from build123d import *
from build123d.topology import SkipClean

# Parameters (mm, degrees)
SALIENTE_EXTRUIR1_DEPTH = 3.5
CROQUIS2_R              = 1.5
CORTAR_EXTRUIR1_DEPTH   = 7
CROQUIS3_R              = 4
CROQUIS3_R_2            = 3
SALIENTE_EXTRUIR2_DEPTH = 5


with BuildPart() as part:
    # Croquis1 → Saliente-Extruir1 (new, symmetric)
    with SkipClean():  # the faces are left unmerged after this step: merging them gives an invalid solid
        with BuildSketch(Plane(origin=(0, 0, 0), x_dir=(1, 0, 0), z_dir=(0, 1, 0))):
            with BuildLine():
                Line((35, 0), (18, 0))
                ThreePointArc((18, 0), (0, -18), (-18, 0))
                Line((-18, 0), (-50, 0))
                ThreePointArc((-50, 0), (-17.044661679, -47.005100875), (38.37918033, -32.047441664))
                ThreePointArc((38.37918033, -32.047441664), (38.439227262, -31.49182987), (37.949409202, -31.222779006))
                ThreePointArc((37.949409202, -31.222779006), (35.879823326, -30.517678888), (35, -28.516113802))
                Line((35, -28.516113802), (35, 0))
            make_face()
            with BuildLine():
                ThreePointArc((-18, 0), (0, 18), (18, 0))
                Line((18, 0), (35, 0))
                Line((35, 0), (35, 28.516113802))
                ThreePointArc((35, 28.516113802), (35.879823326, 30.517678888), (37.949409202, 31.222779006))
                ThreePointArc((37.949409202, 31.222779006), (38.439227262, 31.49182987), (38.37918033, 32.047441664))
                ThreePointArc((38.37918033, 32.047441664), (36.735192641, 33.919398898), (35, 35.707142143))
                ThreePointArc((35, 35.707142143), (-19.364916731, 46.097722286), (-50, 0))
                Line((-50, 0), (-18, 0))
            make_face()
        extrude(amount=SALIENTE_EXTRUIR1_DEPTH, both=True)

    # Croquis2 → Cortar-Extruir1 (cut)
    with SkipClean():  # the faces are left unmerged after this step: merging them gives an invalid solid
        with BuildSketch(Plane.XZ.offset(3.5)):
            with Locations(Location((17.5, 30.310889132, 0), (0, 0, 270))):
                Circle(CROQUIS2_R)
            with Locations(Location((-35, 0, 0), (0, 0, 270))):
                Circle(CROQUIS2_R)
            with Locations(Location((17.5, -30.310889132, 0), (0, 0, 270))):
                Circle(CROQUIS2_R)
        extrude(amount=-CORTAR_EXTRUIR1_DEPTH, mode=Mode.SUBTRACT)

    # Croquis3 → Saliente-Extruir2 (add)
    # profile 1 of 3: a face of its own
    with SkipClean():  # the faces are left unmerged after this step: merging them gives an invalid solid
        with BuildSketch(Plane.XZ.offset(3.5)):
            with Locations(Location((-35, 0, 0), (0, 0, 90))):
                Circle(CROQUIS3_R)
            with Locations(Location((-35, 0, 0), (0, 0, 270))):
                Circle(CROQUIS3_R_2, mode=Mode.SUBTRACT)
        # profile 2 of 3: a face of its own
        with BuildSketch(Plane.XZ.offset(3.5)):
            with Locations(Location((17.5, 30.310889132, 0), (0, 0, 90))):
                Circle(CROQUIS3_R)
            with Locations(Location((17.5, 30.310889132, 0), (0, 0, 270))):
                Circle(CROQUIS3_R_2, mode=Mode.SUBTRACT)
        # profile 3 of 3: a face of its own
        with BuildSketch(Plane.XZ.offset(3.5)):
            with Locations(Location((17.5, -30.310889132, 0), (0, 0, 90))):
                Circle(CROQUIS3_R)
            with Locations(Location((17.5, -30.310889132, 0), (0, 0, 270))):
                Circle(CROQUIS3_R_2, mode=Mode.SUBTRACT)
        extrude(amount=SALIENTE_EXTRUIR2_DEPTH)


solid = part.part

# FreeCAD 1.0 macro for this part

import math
import FreeCAD as App
import Part
import Sketcher

doc = App.newDocument("Part")
body = doc.addObject("PartDesign::Body", "Body")

sketch1 = doc.addObject("Sketcher::SketchObject", "Sketch")
body.addObject(sketch1)
sketch1.AttachmentSupport = (doc.XZ_Plane, [""])
sketch1.MapMode = "FlatFace"
sketch1.addGeometry(Part.LineSegment(App.Vector(35, 0, 0), App.Vector(18, 0, 0)), False)
sketch1.addGeometry(Part.ArcOfCircle(Part.Circle(App.Vector(0, 0, 0), App.Vector(0, 0, 1), 18), math.radians(0), math.radians(180)), False)
sketch1.addGeometry(Part.LineSegment(App.Vector(-18, 0, 0), App.Vector(-50, 0, 0)), False)
sketch1.addGeometry(Part.ArcOfCircle(Part.Circle(App.Vector(0, 0, 0), App.Vector(0, 0, 1), 50), math.radians(39.862608), math.radians(180)), False)
sketch1.addGeometry(Part.ArcOfCircle(Part.Circle(App.Vector(37.992563, 31.724608, 0), App.Vector(0, 0, 1), 0.503681), math.radians(-94.914955), math.radians(39.862608)), False)
sketch1.addGeometry(Part.ArcOfCircle(Part.Circle(App.Vector(37.716654, 28.516114, 0), App.Vector(0, 0, 1), 2.716654), math.radians(85.085045), math.radians(180)), False)
sketch1.addGeometry(Part.LineSegment(App.Vector(35, 28.516114, 0), App.Vector(35, 0, 0)), False)
sketch1.addGeometry(Part.ArcOfCircle(Part.Circle(App.Vector(0, 0, 0), App.Vector(0, 0, 1), 18), math.radians(180), math.radians(360)), False)
sketch1.addGeometry(Part.LineSegment(App.Vector(18, 0, 0), App.Vector(35, 0, 0)), False)
sketch1.addGeometry(Part.LineSegment(App.Vector(35, 0, 0), App.Vector(35, -28.516114, 0)), False)
sketch1.addGeometry(Part.ArcOfCircle(Part.Circle(App.Vector(37.716654, -28.516114, 0), App.Vector(0, 0, 1), 2.716654), math.radians(180), math.radians(274.914955)), False)
sketch1.addGeometry(Part.ArcOfCircle(Part.Circle(App.Vector(37.992563, -31.724608, 0), App.Vector(0, 0, 1), 0.503681), math.radians(-39.862608), math.radians(94.914955)), False)
sketch1.addGeometry(Part.ArcOfCircle(Part.Circle(App.Vector(0, 0, 0), App.Vector(0, 0, 1), 50), math.radians(-45.572996), math.radians(-39.862608)), False)
sketch1.addGeometry(Part.ArcOfCircle(Part.Circle(App.Vector(0, 0, 0), App.Vector(0, 0, 1), 50), math.radians(-180), math.radians(-45.572996)), False)
sketch1.addGeometry(Part.LineSegment(App.Vector(-50, 0, 0), App.Vector(-18, 0, 0)), False)
sketch1.addConstraint(Sketcher.Constraint("Coincident", 0, 2, 1, 1))
sketch1.addConstraint(Sketcher.Constraint("Coincident", 1, 2, 2, 1))
sketch1.addConstraint(Sketcher.Constraint("Coincident", 2, 2, 3, 2))
sketch1.addConstraint(Sketcher.Constraint("Tangent", 3, 1, 4, 2))
sketch1.addConstraint(Sketcher.Constraint("Tangent", 4, 1, 5, 1))
sketch1.addConstraint(Sketcher.Constraint("Tangent", 5, 2, 6, 1))
sketch1.addConstraint(Sketcher.Constraint("Coincident", 6, 2, 0, 1))
sketch1.addConstraint(Sketcher.Constraint("Coincident", 7, 2, 8, 1))
sketch1.addConstraint(Sketcher.Constraint("Coincident", 8, 2, 9, 1))
sketch1.addConstraint(Sketcher.Constraint("Tangent", 9, 2, 10, 1))
sketch1.addConstraint(Sketcher.Constraint("Tangent", 10, 2, 11, 2))
sketch1.addConstraint(Sketcher.Constraint("Tangent", 11, 1, 12, 2))
sketch1.addConstraint(Sketcher.Constraint("Tangent", 12, 1, 13, 2))
sketch1.addConstraint(Sketcher.Constraint("Coincident", 13, 1, 14, 1))
sketch1.addConstraint(Sketcher.Constraint("Coincident", 14, 2, 7, 1))
sketch1.addConstraint(Sketcher.Constraint("Horizontal", 0))
sketch1.addConstraint(Sketcher.Constraint("Horizontal", 2))
sketch1.addConstraint(Sketcher.Constraint("Vertical", 6))
sketch1.addConstraint(Sketcher.Constraint("Horizontal", 8))
sketch1.addConstraint(Sketcher.Constraint("Vertical", 9))
sketch1.addConstraint(Sketcher.Constraint("Horizontal", 14))
sketch1.addConstraint(Sketcher.Constraint("Coincident", 1, 3, -1, 1))
sketch1.addConstraint(Sketcher.Constraint("Coincident", 3, 3, -1, 1))
sketch1.addConstraint(Sketcher.Constraint("Coincident", 7, 3, -1, 1))
sketch1.addConstraint(Sketcher.Constraint("Coincident", 12, 3, -1, 1))
sketch1.addConstraint(Sketcher.Constraint("Coincident", 7, 2, 0, 2))
sketch1.addConstraint(Sketcher.Constraint("Coincident", 13, 1, 2, 2))
sketch1.addConstraint(Sketcher.Constraint("Equal", 5, 10))
sketch1.addConstraint(Sketcher.Constraint("Equal", 4, 11))
sketch1.addConstraint(Sketcher.Constraint("Equal", 3, 12))
sketch1.addConstraint(Sketcher.Constraint("Symmetric", 5, 3, 10, 3, -1))
sketch1.addConstraint(Sketcher.Constraint("PointOnObject", 0, 2, -1))
sketch1.addConstraint(Sketcher.Constraint("PointOnObject", 1, 2, -1))
sketch1.addConstraint(Sketcher.Constraint("Vertical", 9, 2, 12, 1))
sketch1.addConstraint(Sketcher.Constraint("Radius", 1, 18.0))
sketch1.addConstraint(Sketcher.Constraint("Radius", 3, 50.0))
sketch1.addConstraint(Sketcher.Constraint("DistanceX", 0, 2, 0, 1, 17.0))
sketch1.addConstraint(Sketcher.Constraint("Radius", 4, 0.503681))
sketch1.addConstraint(Sketcher.Constraint("Radius", 5, 2.716654))
sketch1.addConstraint(Sketcher.Constraint("DistanceY", 12, 1, 11, 1, 3.6597))
pad1 = doc.addObject("PartDesign::Pad", "Pad")
body.addObject(pad1)
pad1.Profile = sketch1
pad1.Length = 7
pad1.Midplane = True

sketch2 = doc.addObject("Sketcher::SketchObject", "Sketch001")
body.addObject(sketch2)
sketch2.AttachmentSupport = (doc.XZ_Plane, [""])
sketch2.MapMode = "FlatFace"
sketch2.AttachmentOffset = App.Placement(App.Vector(0, 0, 3.5), App.Rotation())
sketch2.addGeometry(Part.Circle(App.Vector(17.5, 30.310889, 0), App.Vector(0, 0, 1), 1.5), False)
sketch2.addGeometry(Part.Circle(App.Vector(-35, 0, 0), App.Vector(0, 0, 1), 1.5), False)
sketch2.addGeometry(Part.Circle(App.Vector(17.5, -30.310889, 0), App.Vector(0, 0, 1), 1.5), False)
sketch2.addConstraint(Sketcher.Constraint("Equal", 0, 1))
sketch2.addConstraint(Sketcher.Constraint("Equal", 1, 2))
sketch2.addConstraint(Sketcher.Constraint("Symmetric", 0, 3, 2, 3, -1))
sketch2.addConstraint(Sketcher.Constraint("PointOnObject", 1, 3, -1))
sketch2.addConstraint(Sketcher.Constraint("Diameter", 0, 3.0))
sketch2.addConstraint(Sketcher.Constraint("DistanceX", 1, 3, -1, 1, 35.0))
sketch2.addConstraint(Sketcher.Constraint("DistanceX", -1, 1, 0, 3, 17.5))
sketch2.addConstraint(Sketcher.Constraint("DistanceY", -1, 1, 0, 3, 30.310889))
pocket1 = doc.addObject("PartDesign::Pocket", "Pocket")
body.addObject(pocket1)
pocket1.Profile = sketch2
pocket1.Length = 7

sketch3 = doc.addObject("Sketcher::SketchObject", "Sketch002")
body.addObject(sketch3)
sketch3.AttachmentSupport = (doc.XZ_Plane, [""])
sketch3.MapMode = "FlatFace"
sketch3.AttachmentOffset = App.Placement(App.Vector(0, 0, 3.5), App.Rotation())
sketch3.addGeometry(Part.Circle(App.Vector(-35, 0, 0), App.Vector(0, 0, 1), 4), False)
sketch3.addGeometry(Part.Circle(App.Vector(-35, 0, 0), App.Vector(0, 0, 1), 3), False)
sketch3.addGeometry(Part.Circle(App.Vector(17.5, 30.310889, 0), App.Vector(0, 0, 1), 4), False)
sketch3.addGeometry(Part.Circle(App.Vector(17.5, 30.310889, 0), App.Vector(0, 0, 1), 3), False)
sketch3.addGeometry(Part.Circle(App.Vector(17.5, -30.310889, 0), App.Vector(0, 0, 1), 4), False)
sketch3.addGeometry(Part.Circle(App.Vector(17.5, -30.310889, 0), App.Vector(0, 0, 1), 3), False)
sketch3.addConstraint(Sketcher.Constraint("Coincident", 1, 3, 0, 3))
sketch3.addConstraint(Sketcher.Constraint("Coincident", 3, 3, 2, 3))
sketch3.addConstraint(Sketcher.Constraint("Coincident", 5, 3, 4, 3))
sketch3.addConstraint(Sketcher.Constraint("Equal", 0, 2))
sketch3.addConstraint(Sketcher.Constraint("Equal", 1, 3))
sketch3.addConstraint(Sketcher.Constraint("Equal", 2, 4))
sketch3.addConstraint(Sketcher.Constraint("Equal", 3, 5))
sketch3.addConstraint(Sketcher.Constraint("Symmetric", 2, 3, 4, 3, -1))
sketch3.addConstraint(Sketcher.Constraint("PointOnObject", 0, 3, -1))
sketch3.addConstraint(Sketcher.Constraint("Diameter", 0, 8.0))
sketch3.addConstraint(Sketcher.Constraint("Diameter", 1, 6.0))
sketch3.addConstraint(Sketcher.Constraint("DistanceX", 0, 3, -1, 1, 35.0))
sketch3.addConstraint(Sketcher.Constraint("DistanceX", -1, 1, 2, 3, 17.5))
sketch3.addConstraint(Sketcher.Constraint("DistanceY", -1, 1, 2, 3, 30.310889))
pad2 = doc.addObject("PartDesign::Pad", "Pad001")
body.addObject(pad2)
pad2.Profile = sketch3
pad2.Length = 5

doc.recompute()
